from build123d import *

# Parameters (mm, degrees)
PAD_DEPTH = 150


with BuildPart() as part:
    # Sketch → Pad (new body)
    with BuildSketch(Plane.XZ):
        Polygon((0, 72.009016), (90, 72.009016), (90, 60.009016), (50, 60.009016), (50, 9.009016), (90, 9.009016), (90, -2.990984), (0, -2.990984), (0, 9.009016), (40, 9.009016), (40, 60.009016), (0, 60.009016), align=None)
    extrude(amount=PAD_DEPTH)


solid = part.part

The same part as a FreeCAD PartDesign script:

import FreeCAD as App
import Part
import Sketcher
Q = App.Units.Quantity

doc = App.newDocument("Part")
body = doc.addObject("PartDesign::Body", "Body")

# Sketch on XZ plane
sketch1 = body.newObject("Sketcher::SketchObject", "Sketch")
sketch1.AttachmentSupport = (doc.getObject("XZ_Plane"), [""])
sketch1.MapMode = "FlatFace"
sketch1.addGeometry([
    Part.LineSegment(App.Vector(90, 72.009016, 0), App.Vector(0, 72.009016, 0)),  # 0
    Part.LineSegment(App.Vector(0, 72.009016, 0), App.Vector(0, 60.009016, 0)),  # 1
    Part.LineSegment(App.Vector(0, 60.009016, 0), App.Vector(40, 60.009016, 0)),  # 2
    Part.LineSegment(App.Vector(40, 60.009016, 0), App.Vector(40, 9.009016, 0)),  # 3
    Part.LineSegment(App.Vector(40, 9.009016, 0), App.Vector(0, 9.009016, 0)),  # 4
    Part.LineSegment(App.Vector(0, 9.009016, 0), App.Vector(0, -2.990984, 0)),  # 5
    Part.LineSegment(App.Vector(0, -2.990984, 0), App.Vector(90, -2.990984, 0)),  # 6
    Part.LineSegment(App.Vector(90, -2.990984, 0), App.Vector(90, 9.009016, 0)),  # 7
    Part.LineSegment(App.Vector(90, 9.009016, 0), App.Vector(50, 9.009016, 0)),  # 8
    Part.LineSegment(App.Vector(50, 9.009016, 0), App.Vector(50, 60.009016, 0)),  # 9
    Part.LineSegment(App.Vector(50, 60.009016, 0), App.Vector(90, 60.009016, 0)),  # 10
    Part.LineSegment(App.Vector(90, 60.009016, 0), App.Vector(90, 72.009016, 0)),  # 11
], False)
sketch1.addConstraint([
    Sketcher.Constraint("Coincident", 0, 2, 1, 1),
    Sketcher.Constraint("Coincident", 1, 2, 2, 1),
    Sketcher.Constraint("Coincident", 2, 2, 3, 1),
    Sketcher.Constraint("Coincident", 3, 2, 4, 1),
    Sketcher.Constraint("Coincident", 4, 2, 5, 1),
    Sketcher.Constraint("Coincident", 5, 2, 6, 1),
    Sketcher.Constraint("Coincident", 6, 2, 7, 1),
    Sketcher.Constraint("Coincident", 7, 2, 8, 1),
    Sketcher.Constraint("Coincident", 8, 2, 9, 1),
    Sketcher.Constraint("Coincident", 9, 2, 10, 1),
    Sketcher.Constraint("Coincident", 10, 2, 11, 1),
    Sketcher.Constraint("Coincident", 11, 2, 0, 1),
    Sketcher.Constraint("Horizontal", 0),
    Sketcher.Constraint("Vertical", 1),
    Sketcher.Constraint("Horizontal", 2),
    Sketcher.Constraint("Vertical", 3),
    Sketcher.Constraint("Horizontal", 4),
    Sketcher.Constraint("Vertical", 5),
    Sketcher.Constraint("Horizontal", 6),
    Sketcher.Constraint("Vertical", 7),
    Sketcher.Constraint("Horizontal", 8),
    Sketcher.Constraint("Vertical", 9),
    Sketcher.Constraint("Horizontal", 10),
    Sketcher.Constraint("Vertical", 11),
    Sketcher.Constraint("PointOnObject", 0, 2, -2),
    Sketcher.Constraint("PointOnObject", 4, 2, -2),
    Sketcher.Constraint("Horizontal", 4, 2, 7, 2),
    Sketcher.Constraint("Horizontal", 2, 2, 9, 2),
    Sketcher.Constraint("Vertical", 7, 2, 10, 2),
    Sketcher.Constraint("Equal", 4, 8),
    Sketcher.Constraint("Equal", 1, 5),
    Sketcher.Constraint("DistanceX", 0, 2, 0, 1, Q("90 mm")),
    Sketcher.Constraint("DistanceX", 2, 1, 2, 2, Q("40 mm")),
    Sketcher.Constraint("DistanceY", 1, 2, 1, 1, Q("12 mm")),
    Sketcher.Constraint("DistanceY", 3, 2, 3, 1, Q("51 mm")),
    Sketcher.Constraint("DistanceY", -1, 1, 0, 2, Q("72.009016 mm")),
])
pad1 = body.newObject("PartDesign::Pad", "Pad")
pad1.Profile = sketch1
pad1.Length = 150

doc.recompute()
